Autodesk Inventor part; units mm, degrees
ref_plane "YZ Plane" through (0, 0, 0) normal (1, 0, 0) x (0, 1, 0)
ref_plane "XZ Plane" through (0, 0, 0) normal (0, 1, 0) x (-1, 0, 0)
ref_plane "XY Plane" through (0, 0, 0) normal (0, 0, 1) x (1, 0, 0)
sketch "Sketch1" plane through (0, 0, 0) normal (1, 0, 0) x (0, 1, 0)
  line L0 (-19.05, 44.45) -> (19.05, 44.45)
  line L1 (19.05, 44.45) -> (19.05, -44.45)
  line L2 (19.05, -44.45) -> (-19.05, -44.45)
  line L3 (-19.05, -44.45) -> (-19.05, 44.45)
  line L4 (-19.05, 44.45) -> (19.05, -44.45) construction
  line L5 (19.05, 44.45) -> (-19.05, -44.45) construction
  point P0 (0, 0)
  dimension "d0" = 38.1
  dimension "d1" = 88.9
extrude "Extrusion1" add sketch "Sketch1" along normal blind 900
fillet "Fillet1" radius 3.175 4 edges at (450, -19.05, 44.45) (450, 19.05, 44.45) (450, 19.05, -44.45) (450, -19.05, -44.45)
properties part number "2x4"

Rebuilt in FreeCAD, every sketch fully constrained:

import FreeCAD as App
import Part
import Sketcher

V = App.Vector
Q = App.Units.Quantity


def edges_at(feature, points):
    """Names of the edges that pass closest to the given points."""
    edges = feature.Shape.Edges
    near = lambda p: min(range(len(edges)), key=lambda i: edges[i].distToShape(Part.Vertex(*p))[0])
    return sorted({f"Edge{near(p) + 1}" for p in points})

doc = App.newDocument("Part")
body = doc.addObject("PartDesign::Body", "Body")

sketch1 = body.newObject("Sketcher::SketchObject", "Sketch")
sketch1.AttachmentSupport = (doc.getObject("YZ_Plane"), [""])
sketch1.MapMode = "FlatFace"
sketch1.addGeometry([
    Part.LineSegment(V(19, 44, 0), V(-19, 44, 0)),
    Part.LineSegment(V(-19, 44, 0), V(-19, -44, 0)),
    Part.LineSegment(V(-19, -44, 0), V(19, -44, 0)),
    Part.LineSegment(V(19, -44, 0), V(19, 44, 0)),
], False)
sketch1.addConstraint([
    Sketcher.Constraint("Coincident", 0, 2, 1, 1),
    Sketcher.Constraint("Coincident", 1, 2, 2, 1),
    Sketcher.Constraint("Coincident", 2, 2, 3, 1),
    Sketcher.Constraint("Coincident", 3, 2, 0, 1),
    Sketcher.Constraint("Horizontal", 0),
    Sketcher.Constraint("Vertical", 1),
    Sketcher.Constraint("Horizontal", 2),
    Sketcher.Constraint("Vertical", 3),
    Sketcher.Constraint("Symmetric", 0, 2, 2, 2, -1, 1),
    Sketcher.Constraint("DistanceX", 0, 2, 0, 1, Q("1.5 in")),
    Sketcher.Constraint("DistanceY", 1, 2, 1, 1, Q("3.5 in")),
])
pad1 = body.newObject("PartDesign::Pad", "Pad")
pad1.Profile = sketch1
pad1.Length = 900
doc.recompute()

fillet = body.newObject("PartDesign::Fillet", "Fillet")
fillet.Base = (pad1, edges_at(pad1, [
    (450, -19.05, 44.45),
    (450, 19.05, 44.45),
    (450, 19.05, -44.45),
    (450, -19.05, -44.45),
]))
fillet.Radius = Q("0.125 in")

doc.recompute()
